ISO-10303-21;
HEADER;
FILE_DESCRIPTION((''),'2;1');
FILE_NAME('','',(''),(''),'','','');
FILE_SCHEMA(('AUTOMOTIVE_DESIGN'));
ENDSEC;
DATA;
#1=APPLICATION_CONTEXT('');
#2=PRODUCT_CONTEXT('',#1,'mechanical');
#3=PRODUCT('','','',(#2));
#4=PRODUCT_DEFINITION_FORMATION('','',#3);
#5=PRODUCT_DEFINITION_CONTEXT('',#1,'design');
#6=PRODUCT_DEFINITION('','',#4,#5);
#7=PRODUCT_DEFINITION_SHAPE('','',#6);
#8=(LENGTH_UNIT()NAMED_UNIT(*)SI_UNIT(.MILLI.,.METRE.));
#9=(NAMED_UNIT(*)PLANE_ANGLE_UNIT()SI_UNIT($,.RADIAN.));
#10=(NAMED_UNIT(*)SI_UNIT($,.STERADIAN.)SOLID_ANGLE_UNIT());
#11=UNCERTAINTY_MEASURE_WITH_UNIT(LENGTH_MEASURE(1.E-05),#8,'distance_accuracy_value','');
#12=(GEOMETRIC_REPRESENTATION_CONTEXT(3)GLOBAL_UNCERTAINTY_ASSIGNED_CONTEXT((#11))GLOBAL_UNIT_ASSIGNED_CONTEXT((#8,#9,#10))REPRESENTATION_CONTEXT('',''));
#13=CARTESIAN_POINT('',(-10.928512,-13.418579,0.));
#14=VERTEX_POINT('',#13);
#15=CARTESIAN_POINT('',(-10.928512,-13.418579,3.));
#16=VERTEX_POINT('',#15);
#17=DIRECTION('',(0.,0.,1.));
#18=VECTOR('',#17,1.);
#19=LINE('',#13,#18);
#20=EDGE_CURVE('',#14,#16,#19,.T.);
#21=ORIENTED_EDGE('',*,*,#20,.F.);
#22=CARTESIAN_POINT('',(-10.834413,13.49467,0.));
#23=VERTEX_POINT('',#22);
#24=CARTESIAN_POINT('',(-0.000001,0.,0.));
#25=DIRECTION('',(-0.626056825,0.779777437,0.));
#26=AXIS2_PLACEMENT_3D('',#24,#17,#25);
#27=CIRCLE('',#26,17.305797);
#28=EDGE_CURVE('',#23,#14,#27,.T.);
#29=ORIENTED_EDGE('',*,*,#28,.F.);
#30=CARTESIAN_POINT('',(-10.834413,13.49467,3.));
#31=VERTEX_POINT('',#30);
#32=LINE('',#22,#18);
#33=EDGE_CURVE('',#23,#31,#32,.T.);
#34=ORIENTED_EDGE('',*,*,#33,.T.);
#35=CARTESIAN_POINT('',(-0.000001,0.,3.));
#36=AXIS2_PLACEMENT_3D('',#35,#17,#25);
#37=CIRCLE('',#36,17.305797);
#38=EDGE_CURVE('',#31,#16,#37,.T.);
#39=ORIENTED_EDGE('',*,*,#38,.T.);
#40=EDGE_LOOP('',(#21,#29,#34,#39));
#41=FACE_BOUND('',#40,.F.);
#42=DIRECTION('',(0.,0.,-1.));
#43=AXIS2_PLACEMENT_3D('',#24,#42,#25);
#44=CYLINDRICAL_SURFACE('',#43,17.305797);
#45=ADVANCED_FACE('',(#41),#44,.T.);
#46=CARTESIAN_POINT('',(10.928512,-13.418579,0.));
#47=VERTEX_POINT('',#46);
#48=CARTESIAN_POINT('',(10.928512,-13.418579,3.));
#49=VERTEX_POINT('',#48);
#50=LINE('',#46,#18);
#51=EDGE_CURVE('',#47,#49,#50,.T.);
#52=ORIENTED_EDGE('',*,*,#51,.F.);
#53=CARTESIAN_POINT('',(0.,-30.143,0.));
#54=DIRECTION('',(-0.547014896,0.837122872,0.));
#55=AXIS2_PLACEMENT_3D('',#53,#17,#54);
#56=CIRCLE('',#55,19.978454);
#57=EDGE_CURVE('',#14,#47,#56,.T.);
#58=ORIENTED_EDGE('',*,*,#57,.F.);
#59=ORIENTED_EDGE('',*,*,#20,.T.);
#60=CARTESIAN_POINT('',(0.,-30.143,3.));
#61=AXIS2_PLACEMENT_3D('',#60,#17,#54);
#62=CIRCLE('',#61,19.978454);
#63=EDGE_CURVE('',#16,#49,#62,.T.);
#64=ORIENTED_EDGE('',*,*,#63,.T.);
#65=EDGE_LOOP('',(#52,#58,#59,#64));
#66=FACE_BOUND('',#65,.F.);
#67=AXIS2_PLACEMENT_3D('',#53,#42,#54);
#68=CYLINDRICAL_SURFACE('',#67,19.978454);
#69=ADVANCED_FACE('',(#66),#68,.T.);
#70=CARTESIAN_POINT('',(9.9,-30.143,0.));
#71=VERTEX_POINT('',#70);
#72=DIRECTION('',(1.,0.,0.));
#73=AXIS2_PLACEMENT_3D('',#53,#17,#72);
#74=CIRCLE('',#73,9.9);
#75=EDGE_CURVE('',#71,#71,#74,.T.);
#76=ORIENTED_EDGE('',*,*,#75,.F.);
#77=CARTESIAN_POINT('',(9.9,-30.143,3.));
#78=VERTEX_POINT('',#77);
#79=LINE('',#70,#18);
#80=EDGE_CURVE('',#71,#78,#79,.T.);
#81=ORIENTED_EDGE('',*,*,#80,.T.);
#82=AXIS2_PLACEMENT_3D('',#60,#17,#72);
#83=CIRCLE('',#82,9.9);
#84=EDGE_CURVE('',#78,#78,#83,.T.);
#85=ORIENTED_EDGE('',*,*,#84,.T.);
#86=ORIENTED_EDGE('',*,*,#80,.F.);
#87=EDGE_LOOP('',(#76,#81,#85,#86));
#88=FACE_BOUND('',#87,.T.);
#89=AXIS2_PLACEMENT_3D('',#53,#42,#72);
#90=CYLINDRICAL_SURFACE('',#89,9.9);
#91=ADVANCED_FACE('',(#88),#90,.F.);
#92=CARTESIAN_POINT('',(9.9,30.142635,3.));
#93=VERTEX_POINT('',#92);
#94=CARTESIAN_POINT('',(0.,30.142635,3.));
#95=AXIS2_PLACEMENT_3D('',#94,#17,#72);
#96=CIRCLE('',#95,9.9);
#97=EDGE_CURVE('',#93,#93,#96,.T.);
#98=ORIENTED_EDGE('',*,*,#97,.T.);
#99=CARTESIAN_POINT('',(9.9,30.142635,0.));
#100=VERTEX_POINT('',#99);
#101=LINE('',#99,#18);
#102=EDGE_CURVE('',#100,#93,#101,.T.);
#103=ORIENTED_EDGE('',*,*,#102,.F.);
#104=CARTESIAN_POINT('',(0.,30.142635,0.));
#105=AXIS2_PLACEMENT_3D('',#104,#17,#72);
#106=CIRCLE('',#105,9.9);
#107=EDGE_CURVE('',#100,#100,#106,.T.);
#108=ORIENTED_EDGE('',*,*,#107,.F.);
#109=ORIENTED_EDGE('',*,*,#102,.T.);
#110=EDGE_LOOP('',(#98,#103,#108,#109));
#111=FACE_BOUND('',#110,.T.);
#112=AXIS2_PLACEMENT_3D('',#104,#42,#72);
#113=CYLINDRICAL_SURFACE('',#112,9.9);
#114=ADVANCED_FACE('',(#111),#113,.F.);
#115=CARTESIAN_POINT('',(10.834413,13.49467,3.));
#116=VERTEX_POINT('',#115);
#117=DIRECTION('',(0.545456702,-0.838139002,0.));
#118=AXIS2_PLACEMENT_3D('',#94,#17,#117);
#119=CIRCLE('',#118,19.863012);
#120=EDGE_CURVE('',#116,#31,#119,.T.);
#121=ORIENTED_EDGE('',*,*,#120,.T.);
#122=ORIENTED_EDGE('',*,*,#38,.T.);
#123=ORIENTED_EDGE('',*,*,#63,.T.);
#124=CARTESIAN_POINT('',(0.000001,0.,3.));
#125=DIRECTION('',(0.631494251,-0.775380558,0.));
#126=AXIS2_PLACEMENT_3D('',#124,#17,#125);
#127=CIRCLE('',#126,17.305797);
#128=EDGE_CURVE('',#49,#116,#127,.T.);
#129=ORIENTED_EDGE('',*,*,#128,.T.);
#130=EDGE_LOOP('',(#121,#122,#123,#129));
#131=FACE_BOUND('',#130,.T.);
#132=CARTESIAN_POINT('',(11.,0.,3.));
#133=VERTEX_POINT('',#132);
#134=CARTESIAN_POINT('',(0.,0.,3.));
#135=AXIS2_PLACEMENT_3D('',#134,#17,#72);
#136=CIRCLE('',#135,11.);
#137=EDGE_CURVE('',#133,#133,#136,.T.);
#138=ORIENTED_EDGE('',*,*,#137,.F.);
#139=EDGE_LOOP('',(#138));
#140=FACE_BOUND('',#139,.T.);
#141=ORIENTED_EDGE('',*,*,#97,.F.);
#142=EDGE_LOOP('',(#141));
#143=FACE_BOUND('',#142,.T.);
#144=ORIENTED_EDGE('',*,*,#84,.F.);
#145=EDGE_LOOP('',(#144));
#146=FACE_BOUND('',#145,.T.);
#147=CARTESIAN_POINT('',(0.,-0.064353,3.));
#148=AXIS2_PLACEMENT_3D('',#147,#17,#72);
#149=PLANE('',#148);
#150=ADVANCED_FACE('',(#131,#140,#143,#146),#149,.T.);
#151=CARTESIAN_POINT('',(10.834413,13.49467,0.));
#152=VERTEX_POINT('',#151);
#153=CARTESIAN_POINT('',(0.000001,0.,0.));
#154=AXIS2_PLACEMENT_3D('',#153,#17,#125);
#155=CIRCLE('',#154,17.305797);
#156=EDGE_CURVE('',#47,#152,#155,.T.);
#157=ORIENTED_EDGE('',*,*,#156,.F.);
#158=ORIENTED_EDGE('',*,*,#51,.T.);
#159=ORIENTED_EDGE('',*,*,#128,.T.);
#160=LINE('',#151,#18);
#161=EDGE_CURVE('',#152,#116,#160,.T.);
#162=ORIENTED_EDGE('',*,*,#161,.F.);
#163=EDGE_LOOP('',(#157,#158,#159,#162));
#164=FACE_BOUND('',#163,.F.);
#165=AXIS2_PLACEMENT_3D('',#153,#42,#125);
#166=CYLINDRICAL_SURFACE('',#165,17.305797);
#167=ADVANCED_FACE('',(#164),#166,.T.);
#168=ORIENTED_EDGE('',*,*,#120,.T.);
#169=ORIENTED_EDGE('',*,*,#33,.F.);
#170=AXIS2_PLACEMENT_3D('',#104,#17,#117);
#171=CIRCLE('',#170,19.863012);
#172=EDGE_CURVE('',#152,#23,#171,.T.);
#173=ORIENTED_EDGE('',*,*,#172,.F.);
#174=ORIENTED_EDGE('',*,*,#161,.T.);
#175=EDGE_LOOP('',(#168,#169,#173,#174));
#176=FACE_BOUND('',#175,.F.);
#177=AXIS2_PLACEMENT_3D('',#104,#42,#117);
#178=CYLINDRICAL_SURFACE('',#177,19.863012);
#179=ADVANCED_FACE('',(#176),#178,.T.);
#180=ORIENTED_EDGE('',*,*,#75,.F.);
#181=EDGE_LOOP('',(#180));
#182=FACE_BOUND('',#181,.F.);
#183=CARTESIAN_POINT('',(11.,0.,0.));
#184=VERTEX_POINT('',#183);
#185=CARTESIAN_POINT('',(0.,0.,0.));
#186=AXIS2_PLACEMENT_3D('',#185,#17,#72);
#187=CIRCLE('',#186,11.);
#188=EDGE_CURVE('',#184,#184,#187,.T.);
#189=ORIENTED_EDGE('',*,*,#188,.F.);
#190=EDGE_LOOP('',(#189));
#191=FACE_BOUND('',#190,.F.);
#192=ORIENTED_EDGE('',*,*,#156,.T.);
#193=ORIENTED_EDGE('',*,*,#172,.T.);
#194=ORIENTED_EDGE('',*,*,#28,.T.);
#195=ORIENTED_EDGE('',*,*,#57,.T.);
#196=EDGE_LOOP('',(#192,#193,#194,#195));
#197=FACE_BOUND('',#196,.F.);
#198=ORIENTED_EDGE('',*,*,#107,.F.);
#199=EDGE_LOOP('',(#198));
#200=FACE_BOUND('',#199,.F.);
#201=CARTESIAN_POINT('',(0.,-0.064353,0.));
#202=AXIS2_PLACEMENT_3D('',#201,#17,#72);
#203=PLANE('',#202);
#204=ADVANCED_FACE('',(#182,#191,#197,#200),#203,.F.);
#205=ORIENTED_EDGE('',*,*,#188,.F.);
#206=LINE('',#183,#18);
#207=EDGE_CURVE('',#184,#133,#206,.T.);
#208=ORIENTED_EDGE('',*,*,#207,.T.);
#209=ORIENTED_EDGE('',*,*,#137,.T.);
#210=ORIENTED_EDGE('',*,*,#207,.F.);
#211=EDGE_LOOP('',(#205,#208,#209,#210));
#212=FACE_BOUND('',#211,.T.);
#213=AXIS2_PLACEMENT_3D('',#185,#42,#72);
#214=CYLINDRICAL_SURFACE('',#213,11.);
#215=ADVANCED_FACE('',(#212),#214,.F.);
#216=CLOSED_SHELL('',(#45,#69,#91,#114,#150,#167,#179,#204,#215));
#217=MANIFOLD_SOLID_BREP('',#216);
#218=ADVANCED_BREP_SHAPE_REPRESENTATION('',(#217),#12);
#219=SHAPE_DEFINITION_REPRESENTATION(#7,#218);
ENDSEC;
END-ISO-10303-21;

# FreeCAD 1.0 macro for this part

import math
import FreeCAD as App
import Part
import Sketcher
from FreeCAD import Vector
Q = App.Units.Quantity

doc = App.newDocument("Part")
params = doc.addObject("Spreadsheet::Sheet", "Params")
for row, (alias, value) in enumerate([
    ("sketch1_diameter", "22 mm"),
    ("sketch1_diameter2", "19.8 mm"),
    ("pad1_length", "3 mm"),
], start=1):
    params.set(f"A{row}", alias)
    params.set(f"B{row}", "=" + value)
    params.setAlias(f"B{row}", alias)

body = doc.addObject("PartDesign::Body", "Body")

sketch1 = body.newObject("Sketcher::SketchObject", "Sketch")
sketch1.AttachmentSupport = (doc.getObject("XY_Plane"), [""])
sketch1.MapMode = "FlatFace"
sketch1.addGeometry([
    Part.ArcOfCircle(Part.Circle(Vector(0, 0, 0), Vector(0, 0, 1), 17), math.radians(129), math.radians(231)),
    Part.ArcOfCircle(Part.Circle(Vector(0, -30, 0), Vector(0, 0, 1), 20), math.radians(123), math.radians(417)),
    Part.ArcOfCircle(Part.Circle(Vector(0, 0, 0), Vector(0, 0, 1), 17), math.radians(-51), math.radians(51)),
    Part.ArcOfCircle(Part.Circle(Vector(0, 30, 0), Vector(0, 0, 1), 20), math.radians(-57), math.radians(237)),
    Part.Circle(Vector(0, -30, 0), Vector(0, 0, 1), 10),
    Part.Circle(Vector(0, 0, 0), Vector(0, 0, 1), 11),
    Part.Circle(Vector(0, 30, 0), Vector(0, 0, 1), 10),
], False)
sketch1.addConstraint([
    Sketcher.Constraint("Coincident", 0, 2, 1, 1),
    Sketcher.Constraint("Coincident", 1, 2, 2, 1),
    Sketcher.Constraint("Coincident", 2, 2, 3, 1),
    Sketcher.Constraint("Coincident", 3, 2, 0, 1),
    Sketcher.Constraint("Coincident", 0, 3, -1, 1),
    Sketcher.Constraint("Coincident", 2, 3, -1, 1),
    Sketcher.Constraint("Coincident", 5, 3, -1, 1),
    Sketcher.Constraint("Coincident", 4, 3, 1, 3),
    Sketcher.Constraint("Coincident", 6, 3, 3, 3),
    Sketcher.Constraint("Equal", 0, 2),
    Sketcher.Constraint("Equal", 4, 6),
    Sketcher.Constraint("PointOnObject", 1, 3, -2),
    Sketcher.Constraint("PointOnObject", 3, 3, -2),
    Sketcher.Constraint("Diameter", 5, Q("22 mm")),
    Sketcher.Constraint("Diameter", 4, Q("19.8 mm")),
    Sketcher.Constraint("Radius", 3, Q("19.863012 mm")),
    Sketcher.Constraint("DistanceY", 1, 3, -1, 1, Q("30.143 mm")),
    Sketcher.Constraint("Radius", 0, Q("17.305797 mm")),
    Sketcher.Constraint("Radius", 1, Q("19.978454 mm")),
    Sketcher.Constraint("DistanceY", -1, 1, 2, 2, Q("13.49467 mm")),
])
sketch1.setExpression("Constraints[13]", "Params.sketch1_diameter")
sketch1.setExpression("Constraints[14]", "Params.sketch1_diameter2")
pad1 = body.newObject("PartDesign::Pad", "Pad")
pad1.Profile = sketch1
pad1.setExpression("Length", "Params.pad1_length")

doc.recompute()
